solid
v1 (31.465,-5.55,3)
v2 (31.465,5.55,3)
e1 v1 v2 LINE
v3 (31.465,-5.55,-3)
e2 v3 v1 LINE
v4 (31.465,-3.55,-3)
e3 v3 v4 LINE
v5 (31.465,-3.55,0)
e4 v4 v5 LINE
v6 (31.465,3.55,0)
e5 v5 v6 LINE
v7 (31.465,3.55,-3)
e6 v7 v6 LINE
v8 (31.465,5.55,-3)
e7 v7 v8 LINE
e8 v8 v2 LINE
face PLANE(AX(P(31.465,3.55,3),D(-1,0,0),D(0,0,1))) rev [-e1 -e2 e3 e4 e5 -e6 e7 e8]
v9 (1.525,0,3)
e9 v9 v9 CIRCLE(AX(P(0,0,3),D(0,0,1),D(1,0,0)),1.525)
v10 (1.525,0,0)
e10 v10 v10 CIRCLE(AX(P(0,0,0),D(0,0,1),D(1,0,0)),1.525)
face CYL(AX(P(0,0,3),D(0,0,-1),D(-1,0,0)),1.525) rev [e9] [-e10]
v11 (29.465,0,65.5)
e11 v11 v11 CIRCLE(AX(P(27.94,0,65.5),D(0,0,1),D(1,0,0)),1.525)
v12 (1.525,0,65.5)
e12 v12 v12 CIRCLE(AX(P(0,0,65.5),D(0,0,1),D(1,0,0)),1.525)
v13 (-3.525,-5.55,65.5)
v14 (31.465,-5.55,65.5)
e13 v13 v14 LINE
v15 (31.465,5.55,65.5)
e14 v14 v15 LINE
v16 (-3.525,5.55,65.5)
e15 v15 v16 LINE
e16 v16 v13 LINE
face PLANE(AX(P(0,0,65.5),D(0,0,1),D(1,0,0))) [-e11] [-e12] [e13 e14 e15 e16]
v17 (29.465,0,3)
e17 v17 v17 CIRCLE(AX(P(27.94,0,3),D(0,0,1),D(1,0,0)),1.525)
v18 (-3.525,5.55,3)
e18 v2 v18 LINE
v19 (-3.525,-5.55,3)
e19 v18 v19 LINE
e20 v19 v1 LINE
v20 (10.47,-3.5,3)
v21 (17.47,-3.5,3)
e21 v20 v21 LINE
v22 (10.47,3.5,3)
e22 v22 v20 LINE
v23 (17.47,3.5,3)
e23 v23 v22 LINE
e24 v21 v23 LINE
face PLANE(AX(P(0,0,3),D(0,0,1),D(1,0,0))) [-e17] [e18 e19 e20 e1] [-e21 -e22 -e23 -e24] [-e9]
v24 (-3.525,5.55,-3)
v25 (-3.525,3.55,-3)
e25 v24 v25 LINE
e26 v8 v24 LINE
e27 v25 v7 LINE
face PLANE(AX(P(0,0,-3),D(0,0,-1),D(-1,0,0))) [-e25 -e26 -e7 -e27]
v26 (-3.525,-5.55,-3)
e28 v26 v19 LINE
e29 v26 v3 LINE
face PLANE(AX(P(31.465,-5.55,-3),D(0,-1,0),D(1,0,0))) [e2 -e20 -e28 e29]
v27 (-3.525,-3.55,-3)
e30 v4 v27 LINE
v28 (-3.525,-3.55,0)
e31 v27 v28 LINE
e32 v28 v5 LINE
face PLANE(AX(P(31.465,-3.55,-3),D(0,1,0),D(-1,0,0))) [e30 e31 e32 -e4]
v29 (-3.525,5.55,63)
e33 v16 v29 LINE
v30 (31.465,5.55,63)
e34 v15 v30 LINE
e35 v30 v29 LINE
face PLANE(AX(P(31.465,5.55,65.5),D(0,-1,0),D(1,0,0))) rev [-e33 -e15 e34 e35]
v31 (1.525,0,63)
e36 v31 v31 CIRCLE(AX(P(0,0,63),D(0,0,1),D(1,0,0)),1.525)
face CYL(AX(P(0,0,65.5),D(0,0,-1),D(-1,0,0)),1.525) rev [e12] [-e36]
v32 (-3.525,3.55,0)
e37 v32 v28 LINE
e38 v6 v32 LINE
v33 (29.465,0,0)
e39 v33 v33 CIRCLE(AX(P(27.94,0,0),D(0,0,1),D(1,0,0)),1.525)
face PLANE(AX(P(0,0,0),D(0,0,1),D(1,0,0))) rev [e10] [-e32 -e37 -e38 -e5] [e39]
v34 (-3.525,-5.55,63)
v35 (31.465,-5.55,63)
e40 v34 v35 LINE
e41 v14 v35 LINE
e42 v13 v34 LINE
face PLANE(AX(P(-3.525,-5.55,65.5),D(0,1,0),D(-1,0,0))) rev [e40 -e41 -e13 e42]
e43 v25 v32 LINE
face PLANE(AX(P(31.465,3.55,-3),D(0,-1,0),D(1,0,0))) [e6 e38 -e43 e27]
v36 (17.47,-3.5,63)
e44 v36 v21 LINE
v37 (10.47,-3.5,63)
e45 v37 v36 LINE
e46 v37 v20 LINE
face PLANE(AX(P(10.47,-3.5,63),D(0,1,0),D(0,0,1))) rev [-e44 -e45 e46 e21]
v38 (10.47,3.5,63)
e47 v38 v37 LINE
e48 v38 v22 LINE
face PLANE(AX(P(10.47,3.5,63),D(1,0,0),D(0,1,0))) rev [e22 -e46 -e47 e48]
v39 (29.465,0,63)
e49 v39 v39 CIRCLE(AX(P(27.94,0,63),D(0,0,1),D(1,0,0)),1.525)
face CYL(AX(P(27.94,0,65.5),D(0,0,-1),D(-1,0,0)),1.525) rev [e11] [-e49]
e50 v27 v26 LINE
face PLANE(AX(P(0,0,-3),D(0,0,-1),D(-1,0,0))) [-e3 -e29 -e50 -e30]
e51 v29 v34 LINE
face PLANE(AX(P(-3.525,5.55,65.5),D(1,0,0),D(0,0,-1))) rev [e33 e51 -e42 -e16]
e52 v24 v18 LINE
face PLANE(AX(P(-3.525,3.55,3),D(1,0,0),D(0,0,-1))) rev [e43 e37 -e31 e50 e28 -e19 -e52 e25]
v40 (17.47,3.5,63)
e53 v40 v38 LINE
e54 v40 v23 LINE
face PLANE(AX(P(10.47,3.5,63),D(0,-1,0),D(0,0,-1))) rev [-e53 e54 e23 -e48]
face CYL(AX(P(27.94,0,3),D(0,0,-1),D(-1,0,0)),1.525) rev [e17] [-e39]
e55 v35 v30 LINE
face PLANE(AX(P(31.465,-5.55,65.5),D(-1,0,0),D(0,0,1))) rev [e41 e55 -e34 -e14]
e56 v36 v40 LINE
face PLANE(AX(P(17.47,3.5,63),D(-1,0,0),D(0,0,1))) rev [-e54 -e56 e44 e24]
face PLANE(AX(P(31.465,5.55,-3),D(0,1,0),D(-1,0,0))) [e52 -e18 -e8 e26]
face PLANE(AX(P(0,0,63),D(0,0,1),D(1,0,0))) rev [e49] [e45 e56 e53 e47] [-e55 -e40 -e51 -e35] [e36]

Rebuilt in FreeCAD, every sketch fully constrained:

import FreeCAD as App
import Part
import Sketcher

V = App.Vector
Q = App.Units.Quantity


def add_polygon(sketch, points):
    """Adds a closed chain of lines whose ends are joined by coincident constraints."""
    first, n = sketch.GeometryCount, len(points)
    for a, b in zip(points, points[1:] + points[:1]):
        sketch.addGeometry(Part.LineSegment(App.Vector(*a, 0), App.Vector(*b, 0)), False)
    for i in range(n):
        sketch.addConstraint(Sketcher.Constraint("Coincident", first + i, 2, first + (i + 1) % n, 1))

doc = App.newDocument("Part")
body = doc.addObject("PartDesign::Body", "Body")

sketch1 = doc.addObject("Sketcher::SketchObject", "Sketch")
body.addObject(sketch1)
sketch1.AttachmentSupport = (doc.XY_Plane, [""])
sketch1.MapMode = "FlatFace"
add_polygon(sketch1, [(-3.5, 3.5), (-3.5, -3.5), (31.5, -3.5), (31.5, 3.5)])
sketch1.addGeometry(Part.Circle(V(0, 0, 0), V(0, 0, 1), 1.5), False)
sketch1.addGeometry(Part.Circle(V(27.9, 0, 0), V(0, 0, 1), 1.5), False)
sketch1.addConstraint([
    Sketcher.Constraint("Vertical", 0),
    Sketcher.Constraint("Horizontal", 1),
    Sketcher.Constraint("Vertical", 2),
    Sketcher.Constraint("Horizontal", 3),
    Sketcher.Constraint("Coincident", 4, 3, -1, 1),
    Sketcher.Constraint("Equal", 4, 5),
    Sketcher.Constraint("PointOnObject", 5, 3, -1),
    Sketcher.Constraint("Diameter", 4, Q("3.05 mm")),
    Sketcher.Constraint("DistanceY", 0, 2, 0, 1, Q("7.1 mm")),
    Sketcher.Constraint("DistanceX", 1, 1, 1, 2, Q("34.99 mm")),
    Sketcher.Constraint("DistanceX", -1, 1, 5, 3, Q("27.94 mm")),
    Sketcher.Constraint("DistanceY", 0, 2, -1, 1, Q("3.55 mm")),
    Sketcher.Constraint("DistanceX", 0, 2, -1, 1, Q("3.525 mm")),
])
pad1 = doc.addObject("PartDesign::Pad", "Pad")
body.addObject(pad1)
pad1.Profile = sketch1
pad1.Length = 3

sketch2 = doc.addObject("Sketcher::SketchObject", "Sketch001")
body.addObject(sketch2)
sketch2.AttachmentSupport = (doc.XY_Plane, [""])
sketch2.MapMode = "FlatFace"
sketch2.AttachmentOffset = App.Placement(V(0, 0, 3), App.Rotation())
add_polygon(sketch2, [(-3.5, -3.5), (-3.5, -5.5), (31.5, -5.5), (31.5, -3.5)])
add_polygon(sketch2, [(-3.5, 5.5), (-3.5, 3.5), (31.5, 3.5), (31.5, 5.5)])
sketch2.addConstraint([
    Sketcher.Constraint("Vertical", 0),
    Sketcher.Constraint("Horizontal", 1),
    Sketcher.Constraint("Vertical", 2),
    Sketcher.Constraint("Horizontal", 3),
    Sketcher.Constraint("Vertical", 4),
    Sketcher.Constraint("Horizontal", 5),
    Sketcher.Constraint("Vertical", 6),
    Sketcher.Constraint("Horizontal", 7),
    Sketcher.Constraint("Symmetric", 3, 2, 4, 2, -1),
    Sketcher.Constraint("Symmetric", 1, 2, 6, 2, -1),
    Sketcher.Constraint("DistanceY", 0, 2, 0, 1, Q("2 mm")),
    Sketcher.Constraint("DistanceX", 1, 1, 1, 2, Q("34.99 mm")),
    Sketcher.Constraint("DistanceY", 3, 2, 4, 2, Q("7.1 mm")),
    Sketcher.Constraint("DistanceX", 0, 2, -1, 1, Q("3.525 mm")),
])
pad2 = doc.addObject("PartDesign::Pad", "Pad001")
body.addObject(pad2)
pad2.Profile = sketch2
pad2.Length = 6
pad2.Reversed = True

sketch3 = doc.addObject("Sketcher::SketchObject", "Sketch002")
body.addObject(sketch3)
sketch3.AttachmentSupport = (doc.XY_Plane, [""])
sketch3.MapMode = "FlatFace"
sketch3.AttachmentOffset = App.Placement(V(0, 0, 3), App.Rotation())
add_polygon(sketch3, [(10, 4), (10, -4), (17, -4), (17, 4)])
sketch3.addConstraint([
    Sketcher.Constraint("Vertical", 0),
    Sketcher.Constraint("Horizontal", 1),
    Sketcher.Constraint("Vertical", 2),
    Sketcher.Constraint("Horizontal", 3),
    Sketcher.Constraint("Equal", 3, 0),
    Sketcher.Constraint("DistanceX", 1, 1, 1, 2, Q("7 mm")),
    Sketcher.Constraint("DistanceY", 0, 2, -1, 1, Q("3.5 mm")),
    Sketcher.Constraint("DistanceX", -1, 1, 0, 2, Q("10.47 mm")),
])
pad3 = doc.addObject("PartDesign::Pad", "Pad002")
body.addObject(pad3)
pad3.Profile = sketch3
pad3.Length = 60

sketch4 = doc.addObject("Sketcher::SketchObject", "Sketch003")
body.addObject(sketch4)
sketch4.AttachmentSupport = (doc.XY_Plane, [""])
sketch4.MapMode = "FlatFace"
sketch4.AttachmentOffset = App.Placement(V(0, 0, 63), App.Rotation())
add_polygon(sketch4, [(-3.5, 5.5), (-3.5, -5.5), (31.5, -5.5), (31.5, 5.5)])
sketch4.addGeometry(Part.Circle(V(0, 0, 0), V(0, 0, 1), 1.5), False)
sketch4.addGeometry(Part.Circle(V(27.9, 0, 0), V(0, 0, 1), 1.5), False)
sketch4.addConstraint([
    Sketcher.Constraint("Vertical", 0),
    Sketcher.Constraint("Horizontal", 1),
    Sketcher.Constraint("Vertical", 2),
    Sketcher.Constraint("Horizontal", 3),
    Sketcher.Constraint("Coincident", 4, 3, -1, 1),
    Sketcher.Constraint("Equal", 4, 5),
    Sketcher.Constraint("PointOnObject", 5, 3, -1),
    Sketcher.Constraint("Diameter", 4, Q("3.05 mm")),
    Sketcher.Constraint("DistanceY", 0, 2, 0, 1, Q("11.1 mm")),
    Sketcher.Constraint("DistanceX", 1, 1, 1, 2, Q("34.99 mm")),
    Sketcher.Constraint("DistanceX", -1, 1, 5, 3, Q("27.94 mm")),
    Sketcher.Constraint("DistanceY", 0, 2, -1, 1, Q("5.55 mm")),
    Sketcher.Constraint("DistanceX", 0, 2, -1, 1, Q("3.525 mm")),
])
pad4 = doc.addObject("PartDesign::Pad", "Pad003")
body.addObject(pad4)
pad4.Profile = sketch4
pad4.Length = 2.5

doc.recompute()
